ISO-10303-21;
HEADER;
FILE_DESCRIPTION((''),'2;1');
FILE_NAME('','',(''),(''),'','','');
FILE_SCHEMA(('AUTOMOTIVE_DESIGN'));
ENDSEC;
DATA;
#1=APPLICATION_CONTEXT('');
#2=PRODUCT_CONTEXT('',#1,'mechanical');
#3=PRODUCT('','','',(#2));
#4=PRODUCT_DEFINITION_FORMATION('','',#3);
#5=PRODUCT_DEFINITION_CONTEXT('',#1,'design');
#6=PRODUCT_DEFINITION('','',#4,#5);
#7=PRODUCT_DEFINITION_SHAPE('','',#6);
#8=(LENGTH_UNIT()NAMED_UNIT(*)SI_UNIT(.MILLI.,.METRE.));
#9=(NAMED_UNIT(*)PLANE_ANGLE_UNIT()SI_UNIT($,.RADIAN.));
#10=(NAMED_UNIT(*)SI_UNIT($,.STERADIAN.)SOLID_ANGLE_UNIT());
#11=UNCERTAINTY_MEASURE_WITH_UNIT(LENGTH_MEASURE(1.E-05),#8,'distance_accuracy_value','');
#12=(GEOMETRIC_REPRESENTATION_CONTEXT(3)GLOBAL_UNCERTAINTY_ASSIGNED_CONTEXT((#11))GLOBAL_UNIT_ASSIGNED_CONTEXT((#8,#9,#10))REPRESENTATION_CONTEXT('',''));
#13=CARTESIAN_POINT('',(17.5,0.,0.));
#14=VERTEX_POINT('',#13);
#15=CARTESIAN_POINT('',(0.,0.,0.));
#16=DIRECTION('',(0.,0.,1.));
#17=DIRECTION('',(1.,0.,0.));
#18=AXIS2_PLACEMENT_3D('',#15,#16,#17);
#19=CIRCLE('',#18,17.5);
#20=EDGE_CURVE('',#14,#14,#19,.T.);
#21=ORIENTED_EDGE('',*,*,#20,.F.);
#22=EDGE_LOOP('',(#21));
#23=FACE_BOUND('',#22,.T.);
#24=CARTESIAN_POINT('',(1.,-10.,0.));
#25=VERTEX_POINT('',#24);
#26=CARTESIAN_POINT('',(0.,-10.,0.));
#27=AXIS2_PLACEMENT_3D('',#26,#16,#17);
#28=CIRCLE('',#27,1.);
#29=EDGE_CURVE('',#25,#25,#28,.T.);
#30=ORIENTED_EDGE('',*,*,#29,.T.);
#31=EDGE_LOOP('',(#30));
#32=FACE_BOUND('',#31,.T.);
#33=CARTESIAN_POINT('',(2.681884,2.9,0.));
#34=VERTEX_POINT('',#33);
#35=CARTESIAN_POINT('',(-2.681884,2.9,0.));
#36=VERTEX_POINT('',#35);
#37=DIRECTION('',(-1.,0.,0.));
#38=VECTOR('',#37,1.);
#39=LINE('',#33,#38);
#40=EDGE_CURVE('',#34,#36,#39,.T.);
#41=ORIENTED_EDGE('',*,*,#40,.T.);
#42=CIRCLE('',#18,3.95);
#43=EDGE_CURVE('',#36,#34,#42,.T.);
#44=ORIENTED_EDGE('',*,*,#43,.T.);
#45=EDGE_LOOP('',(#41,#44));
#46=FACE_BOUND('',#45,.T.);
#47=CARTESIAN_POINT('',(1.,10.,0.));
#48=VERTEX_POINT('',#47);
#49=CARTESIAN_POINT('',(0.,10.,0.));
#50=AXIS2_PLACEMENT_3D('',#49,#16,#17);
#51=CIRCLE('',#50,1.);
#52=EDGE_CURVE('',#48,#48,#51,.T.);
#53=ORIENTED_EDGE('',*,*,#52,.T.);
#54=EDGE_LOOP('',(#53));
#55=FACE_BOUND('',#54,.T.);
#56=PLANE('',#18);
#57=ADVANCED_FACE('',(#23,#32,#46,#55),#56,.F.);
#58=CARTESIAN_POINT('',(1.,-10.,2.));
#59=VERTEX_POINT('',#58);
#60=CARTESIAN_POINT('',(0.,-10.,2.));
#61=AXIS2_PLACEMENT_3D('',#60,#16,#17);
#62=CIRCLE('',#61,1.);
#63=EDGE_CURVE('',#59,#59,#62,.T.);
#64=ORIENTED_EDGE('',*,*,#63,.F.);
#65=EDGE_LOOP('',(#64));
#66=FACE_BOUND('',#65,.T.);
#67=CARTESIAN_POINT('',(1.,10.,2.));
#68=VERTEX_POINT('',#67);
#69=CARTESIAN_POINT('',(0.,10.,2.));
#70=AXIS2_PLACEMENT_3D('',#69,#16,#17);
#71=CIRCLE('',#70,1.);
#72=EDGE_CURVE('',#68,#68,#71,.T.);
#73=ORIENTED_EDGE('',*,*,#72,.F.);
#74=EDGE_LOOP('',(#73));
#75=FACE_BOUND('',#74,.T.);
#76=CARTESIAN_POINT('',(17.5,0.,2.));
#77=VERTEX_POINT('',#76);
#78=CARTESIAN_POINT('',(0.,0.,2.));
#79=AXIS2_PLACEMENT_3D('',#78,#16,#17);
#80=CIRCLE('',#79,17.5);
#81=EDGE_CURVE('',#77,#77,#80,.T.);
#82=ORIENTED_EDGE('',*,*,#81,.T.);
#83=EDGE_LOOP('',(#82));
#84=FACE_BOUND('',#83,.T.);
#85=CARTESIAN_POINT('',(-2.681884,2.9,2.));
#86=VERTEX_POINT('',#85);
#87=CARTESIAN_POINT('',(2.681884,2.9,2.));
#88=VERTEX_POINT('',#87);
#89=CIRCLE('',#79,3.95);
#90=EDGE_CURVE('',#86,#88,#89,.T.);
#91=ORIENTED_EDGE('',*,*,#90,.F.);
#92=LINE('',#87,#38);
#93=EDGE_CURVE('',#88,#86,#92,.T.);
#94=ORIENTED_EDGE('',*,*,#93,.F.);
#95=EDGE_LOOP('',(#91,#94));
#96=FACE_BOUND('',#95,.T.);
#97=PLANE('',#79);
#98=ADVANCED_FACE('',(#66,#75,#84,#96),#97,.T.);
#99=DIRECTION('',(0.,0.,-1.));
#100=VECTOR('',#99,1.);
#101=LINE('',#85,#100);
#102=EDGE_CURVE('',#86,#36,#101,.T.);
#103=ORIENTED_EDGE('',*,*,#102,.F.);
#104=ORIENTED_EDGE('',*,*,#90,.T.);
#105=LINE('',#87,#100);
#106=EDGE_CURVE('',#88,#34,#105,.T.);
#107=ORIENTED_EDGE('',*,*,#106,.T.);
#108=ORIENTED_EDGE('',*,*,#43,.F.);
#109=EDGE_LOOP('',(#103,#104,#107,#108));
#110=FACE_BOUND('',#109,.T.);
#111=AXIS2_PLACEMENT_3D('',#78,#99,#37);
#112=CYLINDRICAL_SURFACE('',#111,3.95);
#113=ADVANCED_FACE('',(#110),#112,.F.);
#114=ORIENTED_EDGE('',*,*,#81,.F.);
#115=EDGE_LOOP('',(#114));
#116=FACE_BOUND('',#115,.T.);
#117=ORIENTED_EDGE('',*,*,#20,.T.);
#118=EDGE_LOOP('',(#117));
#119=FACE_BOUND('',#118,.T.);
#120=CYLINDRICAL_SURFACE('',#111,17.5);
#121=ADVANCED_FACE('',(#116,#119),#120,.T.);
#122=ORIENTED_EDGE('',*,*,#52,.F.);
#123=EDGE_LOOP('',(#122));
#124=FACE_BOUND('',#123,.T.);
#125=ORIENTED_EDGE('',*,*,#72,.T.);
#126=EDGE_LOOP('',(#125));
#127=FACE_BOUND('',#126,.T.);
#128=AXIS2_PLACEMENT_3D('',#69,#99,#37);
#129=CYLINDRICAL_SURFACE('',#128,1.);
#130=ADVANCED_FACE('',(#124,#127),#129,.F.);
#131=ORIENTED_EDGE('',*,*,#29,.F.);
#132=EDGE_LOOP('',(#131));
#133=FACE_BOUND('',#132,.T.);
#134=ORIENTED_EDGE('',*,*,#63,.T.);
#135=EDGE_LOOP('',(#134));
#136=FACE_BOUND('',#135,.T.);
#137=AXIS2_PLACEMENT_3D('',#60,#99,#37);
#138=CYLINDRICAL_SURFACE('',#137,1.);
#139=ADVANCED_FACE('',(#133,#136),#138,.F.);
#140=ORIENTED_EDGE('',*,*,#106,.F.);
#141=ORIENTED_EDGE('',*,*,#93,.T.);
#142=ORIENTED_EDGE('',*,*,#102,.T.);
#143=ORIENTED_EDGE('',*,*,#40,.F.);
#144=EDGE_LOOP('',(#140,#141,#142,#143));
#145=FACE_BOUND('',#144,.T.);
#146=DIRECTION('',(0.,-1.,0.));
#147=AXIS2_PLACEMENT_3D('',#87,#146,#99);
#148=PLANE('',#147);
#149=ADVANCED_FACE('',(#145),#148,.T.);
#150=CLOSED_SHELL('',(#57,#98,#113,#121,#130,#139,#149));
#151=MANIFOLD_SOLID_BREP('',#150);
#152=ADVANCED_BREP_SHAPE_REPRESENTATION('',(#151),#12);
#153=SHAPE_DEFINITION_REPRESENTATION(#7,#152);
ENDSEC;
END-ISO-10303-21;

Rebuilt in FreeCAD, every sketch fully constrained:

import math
import FreeCAD as App
import Part
import Sketcher

V = App.Vector

doc = App.newDocument("Part")
body = doc.addObject("PartDesign::Body", "Body")

sketch1 = body.newObject("Sketcher::SketchObject", "Sketch")
sketch1.AttachmentSupport = (doc.getObject("XY_Plane"), [""])
sketch1.MapMode = "FlatFace"
sketch1.addGeometry(Part.Circle(V(0, 0, 0), V(0, 0, 1), 17.5), False)
sketch1.addGeometry(Part.Circle(V(0, -10, 0), V(0, 0, 1), 1), False)
sketch1.addGeometry(Part.LineSegment(V(-2.7, 2.9, 0), V(2.7, 2.9, 0)), False)
sketch1.addGeometry(Part.ArcOfCircle(Part.Circle(V(0, 0, 0), V(0, 0, 1), 4), math.radians(133), math.radians(407)), False)
sketch1.addGeometry(Part.Circle(V(0, 10, 0), V(0, 0, 1), 1), False)
sketch1.addConstraint(Sketcher.Constraint("Coincident", 2, 1, 3, 1))
sketch1.addConstraint(Sketcher.Constraint("Coincident", 3, 2, 2, 2))
sketch1.addConstraint(Sketcher.Constraint("Horizontal", 2))
sketch1.addConstraint(Sketcher.Constraint("Coincident", 0, 3, -1, 1))
sketch1.addConstraint(Sketcher.Constraint("Coincident", 3, 3, -1, 1))
sketch1.addConstraint(Sketcher.Constraint("Equal", 1, 4))
sketch1.addConstraint(Sketcher.Constraint("Symmetric", 1, 3, 4, 3, -1, 1))
sketch1.addConstraint(Sketcher.Constraint("PointOnObject", 1, 3, -2))
sketch1.addConstraint(Sketcher.Constraint("Diameter", 0, 35.0))
sketch1.addConstraint(Sketcher.Constraint("Diameter", 1, 2.0))
sketch1.addConstraint(Sketcher.Constraint("Radius", 3, 3.95))
sketch1.addConstraint(Sketcher.Constraint("DistanceY", 1, 3, -1, 1, 10.0))
sketch1.addConstraint(Sketcher.Constraint("DistanceY", -1, 1, 2, 1, 2.9))
pad1 = body.newObject("PartDesign::Pad", "Pad")
pad1.Profile = sketch1
pad1.Length = 2

doc.recompute()
